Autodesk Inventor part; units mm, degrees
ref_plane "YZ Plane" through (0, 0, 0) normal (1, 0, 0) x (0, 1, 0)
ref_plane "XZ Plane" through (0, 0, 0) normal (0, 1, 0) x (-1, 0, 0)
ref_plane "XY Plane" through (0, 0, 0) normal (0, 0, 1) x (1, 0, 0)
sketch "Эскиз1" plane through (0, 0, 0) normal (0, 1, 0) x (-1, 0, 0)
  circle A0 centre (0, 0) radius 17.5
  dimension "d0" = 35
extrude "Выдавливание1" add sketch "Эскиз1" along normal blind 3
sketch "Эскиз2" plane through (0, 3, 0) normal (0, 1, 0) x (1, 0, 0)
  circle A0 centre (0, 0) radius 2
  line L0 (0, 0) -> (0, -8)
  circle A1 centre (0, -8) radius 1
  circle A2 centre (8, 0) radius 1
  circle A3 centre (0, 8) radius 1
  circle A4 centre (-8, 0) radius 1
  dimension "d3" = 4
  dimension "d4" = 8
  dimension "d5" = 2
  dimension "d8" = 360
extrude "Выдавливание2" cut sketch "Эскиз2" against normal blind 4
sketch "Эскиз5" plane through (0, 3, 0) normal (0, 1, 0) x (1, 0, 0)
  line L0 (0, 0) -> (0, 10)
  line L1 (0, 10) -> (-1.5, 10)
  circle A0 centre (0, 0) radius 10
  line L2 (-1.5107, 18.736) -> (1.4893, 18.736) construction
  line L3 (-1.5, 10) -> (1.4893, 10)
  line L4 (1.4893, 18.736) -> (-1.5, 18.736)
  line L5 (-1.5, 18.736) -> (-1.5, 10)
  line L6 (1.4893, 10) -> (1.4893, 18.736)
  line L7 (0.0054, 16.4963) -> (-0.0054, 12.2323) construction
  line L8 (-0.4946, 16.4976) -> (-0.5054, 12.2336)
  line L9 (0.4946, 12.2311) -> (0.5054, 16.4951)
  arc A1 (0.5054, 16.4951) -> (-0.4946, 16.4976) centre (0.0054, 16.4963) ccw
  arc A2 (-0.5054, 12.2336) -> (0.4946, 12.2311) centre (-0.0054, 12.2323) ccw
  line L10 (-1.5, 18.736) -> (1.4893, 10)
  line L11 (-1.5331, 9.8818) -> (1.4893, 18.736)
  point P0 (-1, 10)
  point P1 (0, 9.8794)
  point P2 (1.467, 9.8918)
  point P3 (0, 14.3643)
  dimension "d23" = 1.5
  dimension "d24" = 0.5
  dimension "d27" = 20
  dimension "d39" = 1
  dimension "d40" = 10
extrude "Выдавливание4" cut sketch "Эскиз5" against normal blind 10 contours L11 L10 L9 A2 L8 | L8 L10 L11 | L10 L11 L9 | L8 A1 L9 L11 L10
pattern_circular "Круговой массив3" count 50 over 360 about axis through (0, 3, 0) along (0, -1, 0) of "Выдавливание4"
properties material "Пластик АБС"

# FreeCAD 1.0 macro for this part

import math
import FreeCAD as App
import Part
import Sketcher
from FreeCAD import Vector

doc = App.newDocument("Part")
body = doc.addObject("PartDesign::Body", "Body")

# Sketch on XZ plane
sketch1 = doc.addObject("Sketcher::SketchObject", "Sketch")
body.addObject(sketch1)
sketch1.AttachmentSupport = (doc.XZ_Plane, [""])
sketch1.MapMode = "FlatFace"
sketch1.addGeometry(Part.Circle(Vector(0, 0, 0), Vector(0, 0, 1), 18), False)
sketch1.addConstraint(Sketcher.Constraint("Coincident", 0, 3, -1, 1))
sketch1.addConstraint(Sketcher.Constraint("Diameter", 0, 35.0))
pad1 = doc.addObject("PartDesign::Pad", "Pad")
body.addObject(pad1)
pad1.Profile = sketch1
pad1.Length = 3
pad1.Reversed = True

# Sketch on XZ plane
sketch2 = doc.addObject("Sketcher::SketchObject", "Sketch001")
body.addObject(sketch2)
sketch2.AttachmentSupport = (doc.XZ_Plane, [""])
sketch2.MapMode = "FlatFace"
sketch2.AttachmentOffset = App.Placement(Vector(0, 0, -3), App.Rotation())
sketch2.addGeometry(Part.Circle(Vector(0, 0, 0), Vector(0, 0, 1), 2), False)
sketch2.addGeometry(Part.Circle(Vector(0, 8, 0), Vector(0, 0, 1), 1), False)
sketch2.addGeometry(Part.Circle(Vector(8, 0, 0), Vector(0, 0, 1), 1), False)
sketch2.addGeometry(Part.Circle(Vector(0, -8, 0), Vector(0, 0, 1), 1), False)
sketch2.addGeometry(Part.Circle(Vector(-8, 0, 0), Vector(0, 0, 1), 1), False)
sketch2.addConstraint(Sketcher.Constraint("Coincident", 0, 3, -1, 1))
sketch2.addConstraint(Sketcher.Constraint("Equal", 1, 2))
sketch2.addConstraint(Sketcher.Constraint("Equal", 2, 3))
sketch2.addConstraint(Sketcher.Constraint("Equal", 3, 4))
sketch2.addConstraint(Sketcher.Constraint("Symmetric", 1, 3, 3, 3, -1, 1))
sketch2.addConstraint(Sketcher.Constraint("Symmetric", 2, 3, 4, 3, -1, 1))
sketch2.addConstraint(Sketcher.Constraint("PointOnObject", 1, 3, -2))
sketch2.addConstraint(Sketcher.Constraint("PointOnObject", 2, 3, -1))
sketch2.addConstraint(Sketcher.Constraint("Diameter", 0, 4.0))
sketch2.addConstraint(Sketcher.Constraint("Diameter", 1, 2.0))
sketch2.addConstraint(Sketcher.Constraint("DistanceY", -1, 1, 1, 3, 8.0))
sketch2.addConstraint(Sketcher.Constraint("DistanceX", -1, 1, 2, 3, 8.0))
pocket1 = doc.addObject("PartDesign::Pocket", "Pocket")
body.addObject(pocket1)
pocket1.Profile = sketch2
pocket1.Length = 4
pocket1.Reversed = True

# Sketch on XZ plane
sketch3 = doc.addObject("Sketcher::SketchObject", "Sketch002")
body.addObject(sketch3)
sketch3.AttachmentSupport = (doc.XZ_Plane, [""])
sketch3.MapMode = "FlatFace"
sketch3.AttachmentOffset = App.Placement(Vector(0, 0, -3), App.Rotation())
sketch3.addGeometry(Part.LineSegment(Vector(0.5, -12.2, 0), Vector(0.5, -16.5, 0)), False)
sketch3.addGeometry(Part.ArcOfCircle(Part.Circle(Vector(0, -16.5, 0), Vector(0, 0, 1), 0.5), math.radians(-180), math.radians(0)), False)
sketch3.addGeometry(Part.LineSegment(Vector(-0.5, -16.5, 0), Vector(-0.5, -12.2, 0)), False)
sketch3.addGeometry(Part.ArcOfCircle(Part.Circle(Vector(0, -12.2, 0), Vector(0, 0, 1), 0.5), math.radians(0), math.radians(180)), False)
sketch3.addConstraint(Sketcher.Constraint("Tangent", 0, 2, 1, 2))
sketch3.addConstraint(Sketcher.Constraint("Tangent", 1, 1, 2, 1))
sketch3.addConstraint(Sketcher.Constraint("Tangent", 2, 2, 3, 2))
sketch3.addConstraint(Sketcher.Constraint("Tangent", 3, 1, 0, 1))
sketch3.addConstraint(Sketcher.Constraint("Equal", 1, 3))
sketch3.addConstraint(Sketcher.Constraint("Radius", 1, 0.5))
sketch3.addConstraint(Sketcher.Constraint("Distance", 0, 4.264))
sketch3.addConstraint(Sketcher.Constraint("DistanceY", 0, 2, -1, 1, 16.495))
sketch3.addConstraint(Sketcher.Constraint("DistanceX", -1, 1, 1, 3, 0.0054))
sketch3.addConstraint(Sketcher.Constraint("DistanceY", 1, 3, -1, 1, 16.4963))
pocket2 = doc.addObject("PartDesign::Pocket", "Pocket001")
body.addObject(pocket2)
pocket2.Profile = sketch3
pocket2.Length = 10
pocket2.Reversed = True
doc.recompute()

polarpattern = doc.addObject("PartDesign::PolarPattern", "PolarPattern")
body.addObject(polarpattern)
polarpattern.Originals = [pocket2]
polarpattern.Axis = (doc.Y_Axis, [""])
polarpattern.Angle = 360
polarpattern.Occurrences = 50
body.Tip = polarpattern

doc.recompute()
